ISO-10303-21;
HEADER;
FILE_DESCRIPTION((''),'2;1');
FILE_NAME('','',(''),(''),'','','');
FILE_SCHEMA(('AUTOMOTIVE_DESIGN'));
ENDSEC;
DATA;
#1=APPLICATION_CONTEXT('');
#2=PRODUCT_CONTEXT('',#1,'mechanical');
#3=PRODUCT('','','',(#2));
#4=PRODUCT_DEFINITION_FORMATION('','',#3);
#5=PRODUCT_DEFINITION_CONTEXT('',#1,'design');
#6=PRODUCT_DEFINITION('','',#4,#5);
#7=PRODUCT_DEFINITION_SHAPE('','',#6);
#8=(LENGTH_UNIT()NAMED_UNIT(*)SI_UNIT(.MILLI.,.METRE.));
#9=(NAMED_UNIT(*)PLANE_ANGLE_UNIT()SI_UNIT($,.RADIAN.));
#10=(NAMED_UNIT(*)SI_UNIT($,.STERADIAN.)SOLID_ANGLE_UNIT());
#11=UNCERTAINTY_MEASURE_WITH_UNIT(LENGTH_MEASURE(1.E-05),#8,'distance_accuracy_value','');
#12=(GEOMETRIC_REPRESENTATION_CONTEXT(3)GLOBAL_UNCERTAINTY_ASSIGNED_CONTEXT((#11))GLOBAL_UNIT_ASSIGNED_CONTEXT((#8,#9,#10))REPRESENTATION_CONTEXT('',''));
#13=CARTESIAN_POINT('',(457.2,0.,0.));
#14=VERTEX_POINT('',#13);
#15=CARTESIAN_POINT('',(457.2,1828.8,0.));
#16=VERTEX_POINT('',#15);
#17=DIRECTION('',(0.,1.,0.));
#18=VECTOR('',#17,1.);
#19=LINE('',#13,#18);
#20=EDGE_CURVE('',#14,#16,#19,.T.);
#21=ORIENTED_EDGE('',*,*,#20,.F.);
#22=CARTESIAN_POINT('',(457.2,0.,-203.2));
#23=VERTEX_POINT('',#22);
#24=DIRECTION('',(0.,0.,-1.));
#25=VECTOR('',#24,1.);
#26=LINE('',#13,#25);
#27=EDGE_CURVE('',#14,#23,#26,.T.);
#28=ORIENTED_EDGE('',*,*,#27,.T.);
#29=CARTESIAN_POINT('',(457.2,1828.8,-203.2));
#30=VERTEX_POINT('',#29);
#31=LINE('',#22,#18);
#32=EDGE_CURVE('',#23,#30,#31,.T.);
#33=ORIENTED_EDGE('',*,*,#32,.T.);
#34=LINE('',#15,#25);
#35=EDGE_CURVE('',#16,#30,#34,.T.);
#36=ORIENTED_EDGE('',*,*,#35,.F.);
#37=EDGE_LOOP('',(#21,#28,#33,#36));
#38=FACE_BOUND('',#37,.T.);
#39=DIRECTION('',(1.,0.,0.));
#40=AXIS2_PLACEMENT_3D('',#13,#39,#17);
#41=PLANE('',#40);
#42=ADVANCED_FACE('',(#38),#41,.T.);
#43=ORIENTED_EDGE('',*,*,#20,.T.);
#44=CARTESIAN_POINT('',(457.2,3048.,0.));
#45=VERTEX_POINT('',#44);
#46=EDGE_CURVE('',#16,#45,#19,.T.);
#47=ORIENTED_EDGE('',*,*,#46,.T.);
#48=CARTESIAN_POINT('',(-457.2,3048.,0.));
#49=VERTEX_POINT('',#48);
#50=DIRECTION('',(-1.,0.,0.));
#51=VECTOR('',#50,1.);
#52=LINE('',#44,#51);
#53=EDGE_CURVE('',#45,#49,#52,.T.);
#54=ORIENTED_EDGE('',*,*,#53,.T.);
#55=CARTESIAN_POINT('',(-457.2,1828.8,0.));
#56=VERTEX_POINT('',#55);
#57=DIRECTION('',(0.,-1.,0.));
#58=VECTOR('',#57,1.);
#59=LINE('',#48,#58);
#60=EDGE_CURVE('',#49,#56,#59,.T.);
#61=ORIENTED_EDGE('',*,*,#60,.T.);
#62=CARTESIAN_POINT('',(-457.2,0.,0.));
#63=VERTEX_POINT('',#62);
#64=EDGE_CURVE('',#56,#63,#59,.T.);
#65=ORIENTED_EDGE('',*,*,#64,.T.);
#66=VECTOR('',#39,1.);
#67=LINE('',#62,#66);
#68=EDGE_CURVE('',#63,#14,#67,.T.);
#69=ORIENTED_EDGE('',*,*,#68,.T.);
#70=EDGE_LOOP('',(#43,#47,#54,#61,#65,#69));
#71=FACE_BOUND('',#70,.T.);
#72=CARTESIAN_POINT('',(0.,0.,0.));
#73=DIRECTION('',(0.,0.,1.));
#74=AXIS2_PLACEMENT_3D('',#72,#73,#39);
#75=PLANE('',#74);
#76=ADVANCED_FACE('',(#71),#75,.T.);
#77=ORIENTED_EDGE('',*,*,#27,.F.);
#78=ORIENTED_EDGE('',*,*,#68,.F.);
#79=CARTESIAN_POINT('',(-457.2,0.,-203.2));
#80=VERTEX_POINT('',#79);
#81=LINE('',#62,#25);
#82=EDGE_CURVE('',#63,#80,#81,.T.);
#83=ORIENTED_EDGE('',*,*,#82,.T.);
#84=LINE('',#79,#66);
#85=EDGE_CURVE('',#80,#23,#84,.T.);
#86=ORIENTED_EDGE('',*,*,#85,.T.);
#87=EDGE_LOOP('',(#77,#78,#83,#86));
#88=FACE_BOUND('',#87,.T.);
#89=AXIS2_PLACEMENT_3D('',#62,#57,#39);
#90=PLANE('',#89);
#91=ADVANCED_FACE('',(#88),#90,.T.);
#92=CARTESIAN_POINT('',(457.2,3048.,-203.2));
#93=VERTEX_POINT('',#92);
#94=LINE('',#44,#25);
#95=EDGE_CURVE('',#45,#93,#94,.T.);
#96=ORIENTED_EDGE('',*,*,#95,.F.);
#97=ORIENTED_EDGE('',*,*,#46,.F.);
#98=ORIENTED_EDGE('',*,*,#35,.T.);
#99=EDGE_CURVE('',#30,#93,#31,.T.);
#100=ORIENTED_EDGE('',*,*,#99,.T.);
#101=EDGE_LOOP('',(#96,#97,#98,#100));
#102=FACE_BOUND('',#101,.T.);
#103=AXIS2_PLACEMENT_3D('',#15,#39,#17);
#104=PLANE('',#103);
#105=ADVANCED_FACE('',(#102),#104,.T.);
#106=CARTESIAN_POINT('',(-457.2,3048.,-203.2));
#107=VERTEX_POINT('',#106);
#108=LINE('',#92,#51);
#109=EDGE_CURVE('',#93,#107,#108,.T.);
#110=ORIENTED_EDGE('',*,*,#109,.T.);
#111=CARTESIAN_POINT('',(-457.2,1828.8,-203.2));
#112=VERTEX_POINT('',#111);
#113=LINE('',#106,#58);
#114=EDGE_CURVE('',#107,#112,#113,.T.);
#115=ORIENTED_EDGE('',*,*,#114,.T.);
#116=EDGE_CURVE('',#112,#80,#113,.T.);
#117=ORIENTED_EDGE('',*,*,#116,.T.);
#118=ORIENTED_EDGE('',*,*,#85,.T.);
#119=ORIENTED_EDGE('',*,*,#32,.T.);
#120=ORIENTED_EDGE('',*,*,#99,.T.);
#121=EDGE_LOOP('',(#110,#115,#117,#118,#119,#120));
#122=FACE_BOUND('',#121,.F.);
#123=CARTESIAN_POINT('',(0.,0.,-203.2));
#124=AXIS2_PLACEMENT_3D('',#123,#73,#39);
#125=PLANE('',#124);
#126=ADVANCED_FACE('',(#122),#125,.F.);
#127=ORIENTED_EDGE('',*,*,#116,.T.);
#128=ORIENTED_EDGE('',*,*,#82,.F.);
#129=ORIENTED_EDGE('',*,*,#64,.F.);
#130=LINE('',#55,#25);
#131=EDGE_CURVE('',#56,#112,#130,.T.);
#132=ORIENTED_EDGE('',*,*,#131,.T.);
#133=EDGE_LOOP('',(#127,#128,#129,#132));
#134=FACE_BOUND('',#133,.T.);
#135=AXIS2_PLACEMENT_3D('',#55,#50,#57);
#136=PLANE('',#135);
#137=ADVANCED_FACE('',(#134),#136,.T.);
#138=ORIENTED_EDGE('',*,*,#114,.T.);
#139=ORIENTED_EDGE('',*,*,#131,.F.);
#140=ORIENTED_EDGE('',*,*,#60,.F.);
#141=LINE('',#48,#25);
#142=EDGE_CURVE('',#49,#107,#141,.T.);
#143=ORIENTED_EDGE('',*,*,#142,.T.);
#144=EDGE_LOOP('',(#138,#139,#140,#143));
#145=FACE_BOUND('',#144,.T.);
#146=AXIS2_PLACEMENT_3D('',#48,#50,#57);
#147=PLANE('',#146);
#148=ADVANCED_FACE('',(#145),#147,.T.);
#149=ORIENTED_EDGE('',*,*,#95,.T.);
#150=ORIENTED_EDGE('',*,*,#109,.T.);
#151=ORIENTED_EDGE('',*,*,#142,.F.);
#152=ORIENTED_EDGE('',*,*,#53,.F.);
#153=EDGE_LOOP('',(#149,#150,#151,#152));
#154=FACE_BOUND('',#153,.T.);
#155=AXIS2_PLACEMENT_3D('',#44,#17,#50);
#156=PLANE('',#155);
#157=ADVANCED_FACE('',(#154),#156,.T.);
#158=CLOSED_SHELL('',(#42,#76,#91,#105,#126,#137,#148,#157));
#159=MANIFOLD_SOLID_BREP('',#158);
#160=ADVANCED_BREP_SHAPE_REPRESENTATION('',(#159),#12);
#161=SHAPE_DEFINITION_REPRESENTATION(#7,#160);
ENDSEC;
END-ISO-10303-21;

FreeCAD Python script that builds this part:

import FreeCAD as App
import Part
import Sketcher
Q = App.Units.Quantity


def add_polygon(sketch, points):
    """Adds a closed chain of lines whose ends are joined by coincident constraints."""
    first, n = sketch.GeometryCount, len(points)
    for a, b in zip(points, points[1:] + points[:1]):
        sketch.addGeometry(Part.LineSegment(App.Vector(*a, 0), App.Vector(*b, 0)), False)
    for i in range(n):
        sketch.addConstraint(Sketcher.Constraint("Coincident", first + i, 2, first + (i + 1) % n, 1))

doc = App.newDocument("Part")
body = doc.addObject("PartDesign::Body", "Body")

# Sketch on XY plane
sketch1 = body.newObject("Sketcher::SketchObject", "Sketch")
sketch1.AttachmentSupport = (doc.getObject("XY_Plane"), [""])
sketch1.MapMode = "FlatFace"
add_polygon(sketch1, [(-457.2, 3048), (-457.2, 0), (457.2, 0), (457.2, 3048)])  # lines 0-3
sketch1.addConstraint(Sketcher.Constraint("Vertical", 0))
sketch1.addConstraint(Sketcher.Constraint("Horizontal", 1))
sketch1.addConstraint(Sketcher.Constraint("Vertical", 2))
sketch1.addConstraint(Sketcher.Constraint("Horizontal", 3))
sketch1.addConstraint(Sketcher.Constraint("Symmetric", 0, 2, 1, 2, -1, 1))
sketch1.addConstraint(Sketcher.Constraint("DistanceX", 1, 1, 1, 2, Q("36 in")))
sketch1.addConstraint(Sketcher.Constraint("DistanceY", 0, 2, 0, 1, Q("120 in")))
pad1 = body.newObject("PartDesign::Pad", "Pad")
pad1.Profile = sketch1
pad1.Length = Q("8 in")
pad1.Reversed = True

doc.recompute()
